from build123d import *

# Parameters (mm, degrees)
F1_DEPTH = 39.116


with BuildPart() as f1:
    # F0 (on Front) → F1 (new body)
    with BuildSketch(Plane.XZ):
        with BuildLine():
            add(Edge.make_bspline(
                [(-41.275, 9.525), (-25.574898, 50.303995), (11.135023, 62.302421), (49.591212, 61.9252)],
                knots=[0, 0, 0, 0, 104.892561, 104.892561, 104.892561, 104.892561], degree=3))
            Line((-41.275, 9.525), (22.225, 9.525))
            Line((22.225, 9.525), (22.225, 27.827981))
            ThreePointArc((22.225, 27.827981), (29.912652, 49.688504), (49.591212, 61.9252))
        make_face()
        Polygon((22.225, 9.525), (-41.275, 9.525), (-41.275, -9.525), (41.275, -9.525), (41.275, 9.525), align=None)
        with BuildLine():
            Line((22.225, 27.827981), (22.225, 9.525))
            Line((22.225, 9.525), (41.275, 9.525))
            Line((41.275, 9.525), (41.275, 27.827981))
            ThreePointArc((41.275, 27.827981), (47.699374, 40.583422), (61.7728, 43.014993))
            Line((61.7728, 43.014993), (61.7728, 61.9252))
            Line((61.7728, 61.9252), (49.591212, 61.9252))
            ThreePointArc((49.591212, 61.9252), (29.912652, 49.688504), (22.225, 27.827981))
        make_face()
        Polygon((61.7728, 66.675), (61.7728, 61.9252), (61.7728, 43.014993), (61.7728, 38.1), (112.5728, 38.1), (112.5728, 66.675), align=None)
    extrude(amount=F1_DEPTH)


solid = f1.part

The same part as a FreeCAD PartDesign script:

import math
import FreeCAD as App
import Part
import Sketcher
from FreeCAD import Vector
Q = App.Units.Quantity

doc = App.newDocument("Part")
body = doc.addObject("PartDesign::Body", "Body")

sketch1 = doc.addObject("Sketcher::SketchObject", "Sketch")
body.addObject(sketch1)
sketch1.AttachmentSupport = (doc.XZ_Plane, [""])
sketch1.MapMode = "FlatFace"
sketch1.addGeometry(Part.BSplineCurve([Vector(-41.275, 9.525, 0), Vector(-25.574898, 50.303995, 0), Vector(11.135023, 62.302421, 0), Vector(49.591212, 61.9252, 0)], [4, 4], [0, 104.892561], False, 3, [1, 1, 1, 1], False), False)
sketch1.addGeometry(Part.LineSegment(Vector(-41.275, 9.525, 0), Vector(-41.275, -9.525, 0)), False)
sketch1.addGeometry(Part.LineSegment(Vector(-41.275, -9.525, 0), Vector(41.275, -9.525, 0)), False)
sketch1.addGeometry(Part.LineSegment(Vector(41.275, -9.525, 0), Vector(41.275, 27.827981, 0)), False)
sketch1.addGeometry(Part.ArcOfCircle(Part.Circle(Vector(57.15, 27.82798, 0), Vector(0, 0, 1), 15.875), math.radians(73.07019), math.radians(179.999997)), False)
sketch1.addGeometry(Part.LineSegment(Vector(61.7728, 43.014993, 0), Vector(61.7728, 38.1, 0)), False)
sketch1.addGeometry(Part.LineSegment(Vector(61.7728, 38.1, 0), Vector(112.5728, 38.1, 0)), False)
sketch1.addGeometry(Part.LineSegment(Vector(112.5728, 38.1, 0), Vector(112.5728, 66.675, 0)), False)
sketch1.addGeometry(Part.LineSegment(Vector(112.5728, 66.675, 0), Vector(61.7728, 66.675, 0)), False)
sketch1.addGeometry(Part.LineSegment(Vector(61.7728, 66.675, 0), Vector(61.7728, 61.9252, 0)), False)
sketch1.addGeometry(Part.LineSegment(Vector(61.7728, 61.9252, 0), Vector(49.591212, 61.9252, 0)), False)
sketch1.addConstraint(Sketcher.Constraint("Block", 0))
sketch1.addConstraint(Sketcher.Constraint("Coincident", 0, 1, 1, 1))
sketch1.addConstraint(Sketcher.Constraint("Coincident", 1, 2, 2, 1))
sketch1.addConstraint(Sketcher.Constraint("Coincident", 2, 2, 3, 1))
sketch1.addConstraint(Sketcher.Constraint("Tangent", 3, 2, 4, 2))
sketch1.addConstraint(Sketcher.Constraint("Coincident", 4, 1, 5, 1))
sketch1.addConstraint(Sketcher.Constraint("Coincident", 5, 2, 6, 1))
sketch1.addConstraint(Sketcher.Constraint("Coincident", 6, 2, 7, 1))
sketch1.addConstraint(Sketcher.Constraint("Coincident", 7, 2, 8, 1))
sketch1.addConstraint(Sketcher.Constraint("Coincident", 8, 2, 9, 1))
sketch1.addConstraint(Sketcher.Constraint("Coincident", 9, 2, 10, 1))
sketch1.addConstraint(Sketcher.Constraint("Coincident", 10, 2, 0, 2))
sketch1.addConstraint(Sketcher.Constraint("Vertical", 1))
sketch1.addConstraint(Sketcher.Constraint("Horizontal", 2))
sketch1.addConstraint(Sketcher.Constraint("Vertical", 3))
sketch1.addConstraint(Sketcher.Constraint("Vertical", 5))
sketch1.addConstraint(Sketcher.Constraint("Horizontal", 6))
sketch1.addConstraint(Sketcher.Constraint("Vertical", 7))
sketch1.addConstraint(Sketcher.Constraint("Horizontal", 8))
sketch1.addConstraint(Sketcher.Constraint("Vertical", 9))
sketch1.addConstraint(Sketcher.Constraint("Horizontal", 10))
sketch1.addConstraint(Sketcher.Constraint("Vertical", 5, 2, 8, 2))
sketch1.addConstraint(Sketcher.Constraint("DistanceX", 6, 1, 6, 2, Q("2 in")))
sketch1.addConstraint(Sketcher.Constraint("Radius", 4, Q("0.625 in")))
sketch1.addConstraint(Sketcher.Constraint("DistanceX", 2, 1, 2, 2, Q("3.25 in")))
sketch1.addConstraint(Sketcher.Constraint("DistanceY", 1, 2, 1, 1, Q("0.75 in")))
sketch1.addConstraint(Sketcher.Constraint("DistanceY", -1, 1, 5, 2, Q("1.5 in")))
sketch1.addConstraint(Sketcher.Constraint("DistanceY", 7, 1, 7, 2, Q("1.125 in")))
sketch1.addConstraint(Sketcher.Constraint("DistanceX", -1, 1, 4, 1, Q("2.432 in")))
sketch1.addConstraint(Sketcher.Constraint("DistanceY", 3, 1, 3, 2, 37.352981))
pad1 = doc.addObject("PartDesign::Pad", "Pad")
body.addObject(pad1)
pad1.Profile = sketch1
pad1.Length = Q("1.54 in")

doc.recompute()
